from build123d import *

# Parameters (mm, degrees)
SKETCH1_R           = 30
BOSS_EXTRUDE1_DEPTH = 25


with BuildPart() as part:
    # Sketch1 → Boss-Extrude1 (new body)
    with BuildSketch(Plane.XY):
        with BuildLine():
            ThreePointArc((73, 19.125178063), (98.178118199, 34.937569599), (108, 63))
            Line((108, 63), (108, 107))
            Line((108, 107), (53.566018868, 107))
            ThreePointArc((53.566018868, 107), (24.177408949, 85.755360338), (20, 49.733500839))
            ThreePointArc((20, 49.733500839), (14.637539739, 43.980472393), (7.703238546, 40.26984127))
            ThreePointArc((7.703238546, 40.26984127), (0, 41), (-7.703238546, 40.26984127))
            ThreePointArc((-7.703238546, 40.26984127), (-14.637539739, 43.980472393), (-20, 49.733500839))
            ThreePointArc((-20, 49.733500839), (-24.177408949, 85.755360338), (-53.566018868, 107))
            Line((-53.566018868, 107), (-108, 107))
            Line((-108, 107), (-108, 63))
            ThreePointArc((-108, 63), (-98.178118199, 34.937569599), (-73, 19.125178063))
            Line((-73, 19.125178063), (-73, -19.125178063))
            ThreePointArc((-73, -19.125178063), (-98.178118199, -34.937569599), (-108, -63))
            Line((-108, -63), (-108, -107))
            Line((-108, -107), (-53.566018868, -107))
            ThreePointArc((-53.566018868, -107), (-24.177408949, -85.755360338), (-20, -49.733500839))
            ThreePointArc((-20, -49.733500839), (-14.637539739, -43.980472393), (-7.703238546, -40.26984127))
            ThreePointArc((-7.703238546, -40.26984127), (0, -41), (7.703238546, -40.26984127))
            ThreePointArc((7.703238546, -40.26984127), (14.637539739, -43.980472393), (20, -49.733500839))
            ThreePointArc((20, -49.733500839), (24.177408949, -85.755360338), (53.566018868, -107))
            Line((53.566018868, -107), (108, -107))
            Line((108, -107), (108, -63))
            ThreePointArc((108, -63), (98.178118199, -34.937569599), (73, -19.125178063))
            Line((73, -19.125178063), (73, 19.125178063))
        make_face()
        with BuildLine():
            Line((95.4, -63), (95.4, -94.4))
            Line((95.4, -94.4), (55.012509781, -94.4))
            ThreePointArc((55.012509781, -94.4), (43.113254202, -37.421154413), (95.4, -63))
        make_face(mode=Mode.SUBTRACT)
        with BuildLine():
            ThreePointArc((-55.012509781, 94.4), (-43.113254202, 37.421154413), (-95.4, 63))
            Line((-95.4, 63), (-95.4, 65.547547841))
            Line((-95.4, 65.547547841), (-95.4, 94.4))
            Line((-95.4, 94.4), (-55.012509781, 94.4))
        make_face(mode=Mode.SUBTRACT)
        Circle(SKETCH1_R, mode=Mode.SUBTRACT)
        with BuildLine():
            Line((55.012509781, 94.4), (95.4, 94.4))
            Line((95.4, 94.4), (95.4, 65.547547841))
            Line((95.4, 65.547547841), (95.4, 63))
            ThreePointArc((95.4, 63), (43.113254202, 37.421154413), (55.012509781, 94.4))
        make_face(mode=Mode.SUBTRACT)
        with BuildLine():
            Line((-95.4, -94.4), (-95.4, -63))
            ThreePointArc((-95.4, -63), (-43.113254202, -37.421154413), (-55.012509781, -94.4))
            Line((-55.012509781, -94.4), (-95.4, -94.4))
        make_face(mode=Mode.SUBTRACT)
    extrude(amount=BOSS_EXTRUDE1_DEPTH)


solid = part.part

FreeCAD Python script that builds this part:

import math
import FreeCAD as App
import Part
import Sketcher
from FreeCAD import Vector

doc = App.newDocument("Part")
body = doc.addObject("PartDesign::Body", "Body")

sketch1 = body.newObject("Sketcher::SketchObject", "Sketch")
sketch1.AttachmentSupport = (doc.getObject("XY_Plane"), [""])
sketch1.MapMode = "FlatFace"
sketch1.addGeometry(Part.ArcOfCircle(Part.Circle(Vector(63, 63, 0), Vector(0, 0, 1), 45), math.radians(-77.160412), math.radians(0)), False)
sketch1.addGeometry(Part.LineSegment(Vector(108, 63, 0), Vector(108, 107, 0)), False)
sketch1.addGeometry(Part.LineSegment(Vector(108, 107, 0), Vector(53.566019, 107, 0)), False)
sketch1.addGeometry(Part.ArcOfCircle(Part.Circle(Vector(63, 63, 0), Vector(0, 0, 1), 45), math.radians(102.101492), math.radians(197.14621)), False)
sketch1.addGeometry(Part.ArcOfCircle(Part.Circle(Vector(0, 63, 0), Vector(0, 0, 1), 24), math.radians(-71.278508), math.radians(-33.55731)), False)
sketch1.addGeometry(Part.ArcOfCircle(Part.Circle(Vector(0, 0, 0), Vector(0, 0, 1), 41), math.radians(79.170685), math.radians(100.829315)), False)
sketch1.addGeometry(Part.ArcOfCircle(Part.Circle(Vector(0, 63, 0), Vector(0, 0, 1), 24), math.radians(-146.44269), math.radians(-108.721492)), False)
sketch1.addGeometry(Part.ArcOfCircle(Part.Circle(Vector(-63, 63, 0), Vector(0, 0, 1), 45), math.radians(-17.14621), math.radians(77.898508)), False)
sketch1.addGeometry(Part.LineSegment(Vector(-53.566019, 107, 0), Vector(-108, 107, 0)), False)
sketch1.addGeometry(Part.LineSegment(Vector(-108, 107, 0), Vector(-108, 63, 0)), False)
sketch1.addGeometry(Part.ArcOfCircle(Part.Circle(Vector(-63, 63, 0), Vector(0, 0, 1), 45), math.radians(180), math.radians(257.160412)), False)
sketch1.addGeometry(Part.LineSegment(Vector(-73, 19.125178, 0), Vector(-73, -19.125178, 0)), False)
sketch1.addGeometry(Part.ArcOfCircle(Part.Circle(Vector(-63, -63, 0), Vector(0, 0, 1), 45), math.radians(102.839588), math.radians(180)), False)
sketch1.addGeometry(Part.LineSegment(Vector(-108, -63, 0), Vector(-108, -107, 0)), False)
sketch1.addGeometry(Part.LineSegment(Vector(-108, -107, 0), Vector(-53.566019, -107, 0)), False)
sketch1.addGeometry(Part.ArcOfCircle(Part.Circle(Vector(-63, -63, 0), Vector(0, 0, 1), 45), math.radians(-77.898508), math.radians(17.14621)), False)
sketch1.addGeometry(Part.ArcOfCircle(Part.Circle(Vector(0, -63, 0), Vector(0, 0, 1), 24), math.radians(108.721492), math.radians(146.44269)), False)
sketch1.addGeometry(Part.ArcOfCircle(Part.Circle(Vector(0, 0, 0), Vector(0, 0, 1), 41), math.radians(-100.829315), math.radians(-79.170685)), False)
sketch1.addGeometry(Part.ArcOfCircle(Part.Circle(Vector(0, -63, 0), Vector(0, 0, 1), 24), math.radians(33.55731), math.radians(71.278508)), False)
sketch1.addGeometry(Part.ArcOfCircle(Part.Circle(Vector(63, -63, 0), Vector(0, 0, 1), 45), math.radians(162.85379), math.radians(257.898508)), False)
sketch1.addGeometry(Part.LineSegment(Vector(53.566019, -107, 0), Vector(108, -107, 0)), False)
sketch1.addGeometry(Part.LineSegment(Vector(108, -107, 0), Vector(108, -63, 0)), False)
sketch1.addGeometry(Part.ArcOfCircle(Part.Circle(Vector(63, -63, 0), Vector(0, 0, 1), 45), math.radians(0), math.radians(77.160412)), False)
sketch1.addGeometry(Part.LineSegment(Vector(73, -19.125178, 0), Vector(73, 19.125178, 0)), False)
sketch1.addGeometry(Part.LineSegment(Vector(-55.01251, -94.4, 0), Vector(-95.4, -94.4, 0)), False)
sketch1.addGeometry(Part.LineSegment(Vector(-95.4, -94.4, 0), Vector(-95.4, -63, 0)), False)
sketch1.addGeometry(Part.ArcOfCircle(Part.Circle(Vector(-63, -63, 0), Vector(0, 0, 1), 32.4), math.radians(-75.727879), math.radians(180)), False)
sketch1.addGeometry(Part.ArcOfCircle(Part.Circle(Vector(63, -63, 0), Vector(0, 0, 1), 32.4), math.radians(0), math.radians(255.727879)), False)
sketch1.addGeometry(Part.LineSegment(Vector(95.4, -63, 0), Vector(95.4, -94.4, 0)), False)
sketch1.addGeometry(Part.LineSegment(Vector(95.4, -94.4, 0), Vector(55.01251, -94.4, 0)), False)
sketch1.addGeometry(Part.Circle(Vector(0, 0, 0), Vector(0, 0, 1), 30), False)
sketch1.addGeometry(Part.LineSegment(Vector(-95.4, 94.4, 0), Vector(-55.01251, 94.4, 0)), False)
sketch1.addGeometry(Part.ArcOfCircle(Part.Circle(Vector(-63, 63, 0), Vector(0, 0, 1), 32.4), math.radians(180), math.radians(435.727879)), False)
sketch1.addGeometry(Part.LineSegment(Vector(-95.4, 63, 0), Vector(-95.4, 94.4, 0)), False)
sketch1.addGeometry(Part.ArcOfCircle(Part.Circle(Vector(63, 63, 0), Vector(0, 0, 1), 32.4), math.radians(104.272121), math.radians(360)), False)
sketch1.addGeometry(Part.LineSegment(Vector(55.01251, 94.4, 0), Vector(95.4, 94.4, 0)), False)
sketch1.addGeometry(Part.LineSegment(Vector(95.4, 94.4, 0), Vector(95.4, 63, 0)), False)
sketch1.addConstraint(Sketcher.Constraint("Tangent", 0, 2, 1, 1))
sketch1.addConstraint(Sketcher.Constraint("Coincident", 1, 2, 2, 1))
sketch1.addConstraint(Sketcher.Constraint("Coincident", 2, 2, 3, 1))
sketch1.addConstraint(Sketcher.Constraint("Coincident", 3, 2, 4, 2))
sketch1.addConstraint(Sketcher.Constraint("Coincident", 4, 1, 5, 1))
sketch1.addConstraint(Sketcher.Constraint("Coincident", 5, 2, 6, 2))
sketch1.addConstraint(Sketcher.Constraint("Coincident", 6, 1, 7, 1))
sketch1.addConstraint(Sketcher.Constraint("Coincident", 7, 2, 8, 1))
sketch1.addConstraint(Sketcher.Constraint("Coincident", 8, 2, 9, 1))
sketch1.addConstraint(Sketcher.Constraint("Tangent", 9, 2, 10, 1))
sketch1.addConstraint(Sketcher.Constraint("Coincident", 10, 2, 11, 1))
sketch1.addConstraint(Sketcher.Constraint("Coincident", 11, 2, 12, 1))
sketch1.addConstraint(Sketcher.Constraint("Tangent", 12, 2, 13, 1))
sketch1.addConstraint(Sketcher.Constraint("Coincident", 13, 2, 14, 1))
sketch1.addConstraint(Sketcher.Constraint("Coincident", 14, 2, 15, 1))
sketch1.addConstraint(Sketcher.Constraint("Coincident", 15, 2, 16, 2))
sketch1.addConstraint(Sketcher.Constraint("Coincident", 16, 1, 17, 1))
sketch1.addConstraint(Sketcher.Constraint("Coincident", 17, 2, 18, 2))
sketch1.addConstraint(Sketcher.Constraint("Coincident", 18, 1, 19, 1))
sketch1.addConstraint(Sketcher.Constraint("Coincident", 19, 2, 20, 1))
sketch1.addConstraint(Sketcher.Constraint("Coincident", 20, 2, 21, 1))
sketch1.addConstraint(Sketcher.Constraint("Tangent", 21, 2, 22, 1))
sketch1.addConstraint(Sketcher.Constraint("Coincident", 22, 2, 23, 1))
sketch1.addConstraint(Sketcher.Constraint("Coincident", 23, 2, 0, 1))
sketch1.addConstraint(Sketcher.Constraint("Coincident", 24, 2, 25, 1))
sketch1.addConstraint(Sketcher.Constraint("Tangent", 25, 2, 26, 2))
sketch1.addConstraint(Sketcher.Constraint("Coincident", 26, 1, 24, 1))
sketch1.addConstraint(Sketcher.Constraint("Tangent", 27, 1, 28, 1))
sketch1.addConstraint(Sketcher.Constraint("Coincident", 28, 2, 29, 1))
sketch1.addConstraint(Sketcher.Constraint("Coincident", 29, 2, 27, 2))
sketch1.addConstraint(Sketcher.Constraint("Coincident", 31, 2, 32, 2))
sketch1.addConstraint(Sketcher.Constraint("Tangent", 32, 1, 33, 1))
sketch1.addConstraint(Sketcher.Constraint("Coincident", 33, 2, 31, 1))
sketch1.addConstraint(Sketcher.Constraint("Coincident", 34, 1, 35, 1))
sketch1.addConstraint(Sketcher.Constraint("Coincident", 35, 2, 36, 1))
sketch1.addConstraint(Sketcher.Constraint("Tangent", 36, 2, 34, 2))
sketch1.addConstraint(Sketcher.Constraint("Vertical", 1))
sketch1.addConstraint(Sketcher.Constraint("Horizontal", 2))
sketch1.addConstraint(Sketcher.Constraint("Horizontal", 8))
sketch1.addConstraint(Sketcher.Constraint("Vertical", 9))
sketch1.addConstraint(Sketcher.Constraint("Vertical", 11))
sketch1.addConstraint(Sketcher.Constraint("Vertical", 13))
sketch1.addConstraint(Sketcher.Constraint("Horizontal", 14))
sketch1.addConstraint(Sketcher.Constraint("Horizontal", 20))
sketch1.addConstraint(Sketcher.Constraint("Vertical", 21))
sketch1.addConstraint(Sketcher.Constraint("Vertical", 23))
sketch1.addConstraint(Sketcher.Constraint("Horizontal", 24))
sketch1.addConstraint(Sketcher.Constraint("Vertical", 25))
sketch1.addConstraint(Sketcher.Constraint("Vertical", 28))
sketch1.addConstraint(Sketcher.Constraint("Horizontal", 29))
sketch1.addConstraint(Sketcher.Constraint("Horizontal", 31))
sketch1.addConstraint(Sketcher.Constraint("Vertical", 33))
sketch1.addConstraint(Sketcher.Constraint("Horizontal", 35))
sketch1.addConstraint(Sketcher.Constraint("Vertical", 36))
sketch1.addConstraint(Sketcher.Constraint("Coincident", 5, 3, -1, 1))
sketch1.addConstraint(Sketcher.Constraint("Coincident", 17, 3, -1, 1))
sketch1.addConstraint(Sketcher.Constraint("Coincident", 30, 3, -1, 1))
sketch1.addConstraint(Sketcher.Constraint("Coincident", 3, 3, 0, 3))
sketch1.addConstraint(Sketcher.Constraint("Coincident", 6, 3, 4, 3))
sketch1.addConstraint(Sketcher.Constraint("Coincident", 10, 3, 7, 3))
sketch1.addConstraint(Sketcher.Constraint("Coincident", 15, 3, 12, 3))
sketch1.addConstraint(Sketcher.Constraint("Coincident", 18, 3, 16, 3))
sketch1.addConstraint(Sketcher.Constraint("Coincident", 22, 3, 19, 3))
sketch1.addConstraint(Sketcher.Constraint("Coincident", 26, 3, 12, 3))
sketch1.addConstraint(Sketcher.Constraint("Coincident", 27, 3, 19, 3))
sketch1.addConstraint(Sketcher.Constraint("Coincident", 32, 3, 7, 3))
sketch1.addConstraint(Sketcher.Constraint("Coincident", 34, 3, 0, 3))
sketch1.addConstraint(Sketcher.Constraint("Equal", 0, 3))
sketch1.addConstraint(Sketcher.Constraint("Equal", 4, 6))
sketch1.addConstraint(Sketcher.Constraint("Equal", 3, 7))
sketch1.addConstraint(Sketcher.Constraint("Equal", 7, 10))
sketch1.addConstraint(Sketcher.Constraint("Equal", 10, 12))
sketch1.addConstraint(Sketcher.Constraint("Equal", 12, 15))
sketch1.addConstraint(Sketcher.Constraint("Equal", 6, 16))
sketch1.addConstraint(Sketcher.Constraint("Equal", 5, 17))
sketch1.addConstraint(Sketcher.Constraint("Equal", 16, 18))
sketch1.addConstraint(Sketcher.Constraint("Equal", 15, 19))
sketch1.addConstraint(Sketcher.Constraint("Equal", 19, 22))
sketch1.addConstraint(Sketcher.Constraint("Equal", 26, 27))
sketch1.addConstraint(Sketcher.Constraint("Equal", 27, 32))
sketch1.addConstraint(Sketcher.Constraint("Equal", 32, 34))
sketch1.addConstraint(Sketcher.Constraint("Symmetric", 0, 3, 12, 3, -1, 1))
sketch1.addConstraint(Sketcher.Constraint("Symmetric", 4, 3, 16, 3, -1, 1))
sketch1.addConstraint(Sketcher.Constraint("Symmetric", 7, 3, 19, 3, -1, 1))
sketch1.addConstraint(Sketcher.Constraint("Symmetric", 0, 3, 7, 3, -2))
sketch1.addConstraint(Sketcher.Constraint("PointOnObject", 4, 3, -2))
sketch1.addConstraint(Sketcher.Constraint("Horizontal", 3, 3, 4, 3))
sketch1.addConstraint(Sketcher.Constraint("Horizontal", 2, 2, 7, 2))
sketch1.addConstraint(Sketcher.Constraint("Horizontal", 14, 2, 19, 2))
sketch1.addConstraint(Sketcher.Constraint("Horizontal", 11, 2, 22, 2))
sketch1.addConstraint(Sketcher.Constraint("Horizontal", 26, 1, 28, 2))
sketch1.addConstraint(Sketcher.Constraint("Horizontal", 33, 2, 34, 1))
sketch1.addConstraint(Sketcher.Constraint("Vertical", 7, 2, 14, 2))
sketch1.addConstraint(Sketcher.Constraint("Vertical", 26, 1, 31, 2))
sketch1.addConstraint(Sketcher.Constraint("Diameter", 30, 60.0))
sketch1.addConstraint(Sketcher.Constraint("Radius", 0, 45.0))
sketch1.addConstraint(Sketcher.Constraint("Radius", 4, 24.0))
sketch1.addConstraint(Sketcher.Constraint("Radius", 5, 41.0))
sketch1.addConstraint(Sketcher.Constraint("Radius", 26, 32.4))
sketch1.addConstraint(Sketcher.Constraint("DistanceY", 1, 1, 1, 2, 44.0))
sketch1.addConstraint(Sketcher.Constraint("DistanceY", 25, 1, 25, 2, 31.4))
sketch1.addConstraint(Sketcher.Constraint("DistanceX", -1, 1, 0, 3, 63.0))
sketch1.addConstraint(Sketcher.Constraint("DistanceY", -1, 1, 0, 3, 63.0))
sketch1.addConstraint(Sketcher.Constraint("DistanceX", 10, 2, -1, 1, 73.0))
pad1 = body.newObject("PartDesign::Pad", "Pad")
pad1.Profile = sketch1
pad1.Length = 25

doc.recompute()
